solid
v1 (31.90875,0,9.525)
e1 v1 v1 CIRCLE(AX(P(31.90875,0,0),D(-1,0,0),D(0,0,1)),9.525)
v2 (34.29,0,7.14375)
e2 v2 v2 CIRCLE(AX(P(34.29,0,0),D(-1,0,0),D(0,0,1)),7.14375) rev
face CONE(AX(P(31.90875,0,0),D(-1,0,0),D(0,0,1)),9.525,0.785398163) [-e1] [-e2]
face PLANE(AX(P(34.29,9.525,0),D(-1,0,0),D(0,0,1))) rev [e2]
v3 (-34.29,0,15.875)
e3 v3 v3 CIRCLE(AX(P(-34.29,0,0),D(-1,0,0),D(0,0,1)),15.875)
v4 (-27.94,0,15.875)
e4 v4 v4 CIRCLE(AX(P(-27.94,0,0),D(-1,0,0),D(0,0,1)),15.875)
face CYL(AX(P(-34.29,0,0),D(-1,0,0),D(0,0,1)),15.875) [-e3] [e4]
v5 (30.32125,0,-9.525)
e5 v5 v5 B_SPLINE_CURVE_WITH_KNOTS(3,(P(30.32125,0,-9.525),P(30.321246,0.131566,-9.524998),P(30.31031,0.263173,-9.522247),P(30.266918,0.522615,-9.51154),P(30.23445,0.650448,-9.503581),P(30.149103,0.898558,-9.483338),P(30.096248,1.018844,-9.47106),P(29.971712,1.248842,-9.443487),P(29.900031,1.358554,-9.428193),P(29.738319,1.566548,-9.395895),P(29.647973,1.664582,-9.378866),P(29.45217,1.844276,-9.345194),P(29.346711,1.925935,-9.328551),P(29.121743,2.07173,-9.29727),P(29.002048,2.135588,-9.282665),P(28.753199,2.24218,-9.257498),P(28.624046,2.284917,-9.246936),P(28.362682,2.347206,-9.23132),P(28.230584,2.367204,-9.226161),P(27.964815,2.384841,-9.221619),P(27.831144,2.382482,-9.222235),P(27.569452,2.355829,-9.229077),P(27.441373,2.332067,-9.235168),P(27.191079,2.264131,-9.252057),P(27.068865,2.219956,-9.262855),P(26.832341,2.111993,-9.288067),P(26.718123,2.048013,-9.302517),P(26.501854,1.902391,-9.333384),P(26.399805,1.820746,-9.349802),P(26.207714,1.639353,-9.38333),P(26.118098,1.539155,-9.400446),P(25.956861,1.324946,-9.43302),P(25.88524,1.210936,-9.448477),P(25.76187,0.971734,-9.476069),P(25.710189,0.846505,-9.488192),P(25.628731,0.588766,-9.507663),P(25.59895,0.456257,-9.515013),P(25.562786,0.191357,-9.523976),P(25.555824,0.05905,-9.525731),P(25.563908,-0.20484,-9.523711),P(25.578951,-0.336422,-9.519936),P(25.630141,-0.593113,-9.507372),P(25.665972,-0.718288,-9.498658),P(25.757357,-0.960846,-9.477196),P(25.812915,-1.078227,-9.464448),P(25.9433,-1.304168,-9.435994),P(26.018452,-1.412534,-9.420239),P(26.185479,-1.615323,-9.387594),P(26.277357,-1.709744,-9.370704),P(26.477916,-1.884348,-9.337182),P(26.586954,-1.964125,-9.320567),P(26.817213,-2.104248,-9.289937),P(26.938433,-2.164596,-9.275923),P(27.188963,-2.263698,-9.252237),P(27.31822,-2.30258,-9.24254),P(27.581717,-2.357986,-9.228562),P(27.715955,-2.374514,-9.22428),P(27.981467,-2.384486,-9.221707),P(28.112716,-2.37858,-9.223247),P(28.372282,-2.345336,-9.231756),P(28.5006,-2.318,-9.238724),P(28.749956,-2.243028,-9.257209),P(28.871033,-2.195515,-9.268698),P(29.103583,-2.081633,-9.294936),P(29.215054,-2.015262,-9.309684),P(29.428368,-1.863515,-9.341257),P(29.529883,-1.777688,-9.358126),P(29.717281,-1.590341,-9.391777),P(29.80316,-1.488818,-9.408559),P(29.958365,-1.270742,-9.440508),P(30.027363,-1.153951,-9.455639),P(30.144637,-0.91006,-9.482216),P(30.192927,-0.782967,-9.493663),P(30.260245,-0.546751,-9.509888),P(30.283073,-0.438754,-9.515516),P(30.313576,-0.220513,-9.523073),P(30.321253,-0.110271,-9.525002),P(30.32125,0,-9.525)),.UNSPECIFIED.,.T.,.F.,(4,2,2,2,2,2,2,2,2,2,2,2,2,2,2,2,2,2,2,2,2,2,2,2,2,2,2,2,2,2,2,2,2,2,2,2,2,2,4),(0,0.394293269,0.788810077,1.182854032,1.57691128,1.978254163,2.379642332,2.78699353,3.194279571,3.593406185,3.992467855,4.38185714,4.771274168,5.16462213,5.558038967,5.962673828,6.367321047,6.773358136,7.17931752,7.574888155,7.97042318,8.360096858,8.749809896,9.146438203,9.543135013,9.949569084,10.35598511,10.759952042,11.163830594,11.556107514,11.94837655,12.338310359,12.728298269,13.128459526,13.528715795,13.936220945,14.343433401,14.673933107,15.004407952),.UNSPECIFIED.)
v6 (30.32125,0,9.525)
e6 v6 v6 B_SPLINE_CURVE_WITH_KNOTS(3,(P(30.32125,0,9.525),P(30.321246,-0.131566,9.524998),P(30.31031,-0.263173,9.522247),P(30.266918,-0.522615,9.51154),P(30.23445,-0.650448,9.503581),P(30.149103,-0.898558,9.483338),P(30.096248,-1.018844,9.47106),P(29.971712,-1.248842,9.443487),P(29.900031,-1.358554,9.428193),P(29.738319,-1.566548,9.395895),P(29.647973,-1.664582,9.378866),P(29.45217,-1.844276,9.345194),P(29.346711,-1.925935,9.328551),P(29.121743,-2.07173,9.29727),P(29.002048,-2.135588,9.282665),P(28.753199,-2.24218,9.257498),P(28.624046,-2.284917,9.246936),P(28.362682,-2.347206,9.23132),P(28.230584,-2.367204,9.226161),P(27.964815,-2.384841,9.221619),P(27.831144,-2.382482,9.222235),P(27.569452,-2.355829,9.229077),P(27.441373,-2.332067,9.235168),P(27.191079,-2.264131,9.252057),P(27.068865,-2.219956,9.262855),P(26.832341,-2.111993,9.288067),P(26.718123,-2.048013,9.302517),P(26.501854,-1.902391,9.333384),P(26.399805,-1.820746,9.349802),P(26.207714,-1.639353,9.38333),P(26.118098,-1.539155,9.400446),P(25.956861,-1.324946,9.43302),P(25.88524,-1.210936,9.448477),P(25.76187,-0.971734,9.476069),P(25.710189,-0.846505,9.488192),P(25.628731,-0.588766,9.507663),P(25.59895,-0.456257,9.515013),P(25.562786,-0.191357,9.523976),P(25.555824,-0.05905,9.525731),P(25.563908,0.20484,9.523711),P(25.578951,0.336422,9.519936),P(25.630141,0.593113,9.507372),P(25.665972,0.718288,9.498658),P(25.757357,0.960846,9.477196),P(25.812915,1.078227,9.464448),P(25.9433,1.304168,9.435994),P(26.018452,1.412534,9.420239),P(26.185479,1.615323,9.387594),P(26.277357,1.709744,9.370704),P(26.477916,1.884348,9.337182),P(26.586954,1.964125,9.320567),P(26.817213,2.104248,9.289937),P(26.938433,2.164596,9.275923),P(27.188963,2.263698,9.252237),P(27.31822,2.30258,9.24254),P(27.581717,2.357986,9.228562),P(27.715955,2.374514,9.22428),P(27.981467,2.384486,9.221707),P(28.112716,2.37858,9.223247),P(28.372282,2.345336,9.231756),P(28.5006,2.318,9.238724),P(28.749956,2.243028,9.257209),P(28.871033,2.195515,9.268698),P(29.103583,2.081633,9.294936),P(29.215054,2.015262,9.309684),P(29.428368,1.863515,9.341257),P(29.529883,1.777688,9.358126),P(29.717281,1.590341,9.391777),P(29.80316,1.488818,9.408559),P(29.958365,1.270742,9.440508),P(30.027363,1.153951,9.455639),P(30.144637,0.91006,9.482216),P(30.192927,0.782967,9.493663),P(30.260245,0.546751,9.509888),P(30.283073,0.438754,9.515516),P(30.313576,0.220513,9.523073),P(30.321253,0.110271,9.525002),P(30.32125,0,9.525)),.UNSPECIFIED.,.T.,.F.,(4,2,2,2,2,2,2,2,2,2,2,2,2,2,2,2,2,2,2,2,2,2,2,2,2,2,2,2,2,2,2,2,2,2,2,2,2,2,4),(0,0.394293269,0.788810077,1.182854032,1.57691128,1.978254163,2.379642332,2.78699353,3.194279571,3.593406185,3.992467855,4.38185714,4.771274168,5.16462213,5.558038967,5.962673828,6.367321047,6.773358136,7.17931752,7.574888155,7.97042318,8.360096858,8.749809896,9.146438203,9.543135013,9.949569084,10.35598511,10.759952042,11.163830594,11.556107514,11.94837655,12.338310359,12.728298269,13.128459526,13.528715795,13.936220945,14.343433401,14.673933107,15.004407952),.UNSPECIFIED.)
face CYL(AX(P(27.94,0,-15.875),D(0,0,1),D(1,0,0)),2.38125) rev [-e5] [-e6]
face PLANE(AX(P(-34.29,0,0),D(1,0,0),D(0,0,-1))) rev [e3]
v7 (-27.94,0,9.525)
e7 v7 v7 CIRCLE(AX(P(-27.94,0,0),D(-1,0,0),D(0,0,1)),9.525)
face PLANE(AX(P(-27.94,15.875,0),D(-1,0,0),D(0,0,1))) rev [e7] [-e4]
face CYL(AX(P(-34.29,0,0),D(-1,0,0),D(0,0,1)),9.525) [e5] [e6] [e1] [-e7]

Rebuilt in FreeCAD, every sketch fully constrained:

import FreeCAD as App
import Part
import Sketcher
Q = App.Units.Quantity


def edges_at(feature, points):
    """Names of the edges that pass closest to the given points."""
    edges = feature.Shape.Edges
    near = lambda p: min(range(len(edges)), key=lambda i: edges[i].distToShape(Part.Vertex(*p))[0])
    return sorted({f"Edge{near(p) + 1}" for p in points})


def add_polygon(sketch, points):
    """Adds a closed chain of lines whose ends are joined by coincident constraints."""
    first, n = sketch.GeometryCount, len(points)
    for a, b in zip(points, points[1:] + points[:1]):
        sketch.addGeometry(Part.LineSegment(App.Vector(*a, 0), App.Vector(*b, 0)), False)
    for i in range(n):
        sketch.addConstraint(Sketcher.Constraint("Coincident", first + i, 2, first + (i + 1) % n, 1))

doc = App.newDocument("Part")
body = doc.addObject("PartDesign::Body", "Body")

# Sketch on XY plane
sketch1 = doc.addObject("Sketcher::SketchObject", "Sketch")
body.addObject(sketch1)
sketch1.AttachmentSupport = (doc.XY_Plane, [""])
sketch1.MapMode = "FlatFace"
add_polygon(sketch1, [(-34.29, 15.875), (-34.29, 0), (34.29, 0), (34.29, 9.525), (-27.94, 9.525), (-27.94, 15.875)])  # lines 0-5
sketch1.addConstraint(Sketcher.Constraint("Vertical", 0))
sketch1.addConstraint(Sketcher.Constraint("Horizontal", 1))
sketch1.addConstraint(Sketcher.Constraint("Vertical", 2))
sketch1.addConstraint(Sketcher.Constraint("Horizontal", 3))
sketch1.addConstraint(Sketcher.Constraint("Vertical", 4))
sketch1.addConstraint(Sketcher.Constraint("Horizontal", 5))
sketch1.addConstraint(Sketcher.Constraint("Symmetric", 0, 2, 1, 2, -1, 1))
sketch1.addConstraint(Sketcher.Constraint("Equal", 5, 4))
sketch1.addConstraint(Sketcher.Constraint("DistanceX", 1, 1, 1, 2, Q("2.7 in")))
sketch1.addConstraint(Sketcher.Constraint("DistanceX", 3, 2, 3, 1, Q("2.45 in")))
sketch1.addConstraint(Sketcher.Constraint("DistanceY", 0, 2, 0, 1, Q("0.625 in")))
revolution = doc.addObject("PartDesign::Revolution", "Revolution")
body.addObject(revolution)
revolution.Profile = sketch1
revolution.ReferenceAxis = (sketch1, ["H_Axis"])
revolution.Angle = 360

# Sketch on XY plane
sketch2 = doc.addObject("Sketcher::SketchObject", "Sketch001")
body.addObject(sketch2)
sketch2.AttachmentSupport = (doc.XY_Plane, [""])
sketch2.MapMode = "FlatFace"
sketch2.addGeometry(Part.Circle(App.Vector(27.94, 0, 0), App.Vector(0, 0, 1), 2.38125), False)
sketch2.addConstraint(Sketcher.Constraint("PointOnObject", 0, 3, -1))
sketch2.addConstraint(Sketcher.Constraint("Diameter", 0, Q("0.1875 in")))
sketch2.addConstraint(Sketcher.Constraint("DistanceX", -1, 1, 0, 3, Q("1.1 in")))
pocket1 = doc.addObject("PartDesign::Pocket", "Pocket")
body.addObject(pocket1)
pocket1.Profile = sketch2
pocket1.Type = "ThroughAll"
pocket1.Midplane = True
doc.recompute()

chamfer = doc.addObject("PartDesign::Chamfer", "Chamfer")
body.addObject(chamfer)
chamfer.Base = (pocket1, edges_at(pocket1, [(34.29, 0, -9.525)]))
chamfer.Size = Q("0.09375 in")

doc.recompute()
